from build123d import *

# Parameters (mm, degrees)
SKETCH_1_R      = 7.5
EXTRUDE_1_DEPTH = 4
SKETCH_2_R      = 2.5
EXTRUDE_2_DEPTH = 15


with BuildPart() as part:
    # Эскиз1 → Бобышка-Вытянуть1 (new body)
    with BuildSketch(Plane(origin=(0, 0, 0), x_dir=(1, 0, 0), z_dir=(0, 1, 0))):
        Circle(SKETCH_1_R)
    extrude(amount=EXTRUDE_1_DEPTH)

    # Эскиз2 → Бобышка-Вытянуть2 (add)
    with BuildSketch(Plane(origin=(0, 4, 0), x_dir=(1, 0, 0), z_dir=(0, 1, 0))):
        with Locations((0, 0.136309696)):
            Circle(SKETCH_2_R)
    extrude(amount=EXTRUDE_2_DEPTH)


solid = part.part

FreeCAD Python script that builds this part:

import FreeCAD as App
import Part
import Sketcher
from FreeCAD import Vector
Q = App.Units.Quantity

doc = App.newDocument("Part")
body = doc.addObject("PartDesign::Body", "Body")

# Sketch on XZ plane
sketch1 = doc.addObject("Sketcher::SketchObject", "Sketch")
body.addObject(sketch1)
sketch1.AttachmentSupport = (doc.XZ_Plane, [""])
sketch1.MapMode = "FlatFace"
sketch1.addGeometry(Part.Circle(Vector(0, 0, 0), Vector(0, 0, 1), 8), False)
sketch1.addConstraint(Sketcher.Constraint("Coincident", 0, 3, -1, 1))
sketch1.addConstraint(Sketcher.Constraint("Diameter", 0, Q("15 mm")))
pad1 = doc.addObject("PartDesign::Pad", "Pad")
body.addObject(pad1)
pad1.Profile = sketch1
pad1.Length = 4
pad1.Reversed = True

# Sketch on XZ plane
sketch2 = doc.addObject("Sketcher::SketchObject", "Sketch001")
body.addObject(sketch2)
sketch2.AttachmentSupport = (doc.XZ_Plane, [""])
sketch2.MapMode = "FlatFace"
sketch2.AttachmentOffset = App.Placement(Vector(0, 0, -4), App.Rotation())
sketch2.addGeometry(Part.Circle(Vector(0, -0.1, 0), Vector(0, 0, 1), 2.5), False)
sketch2.addConstraint(Sketcher.Constraint("PointOnObject", 0, 3, -2))
sketch2.addConstraint(Sketcher.Constraint("Diameter", 0, Q("5 mm")))
sketch2.addConstraint(Sketcher.Constraint("DistanceY", 0, 3, -1, 1, Q("0.13631 mm")))
pad2 = doc.addObject("PartDesign::Pad", "Pad001")
body.addObject(pad2)
pad2.Profile = sketch2
pad2.Length = 15
pad2.Reversed = True

doc.recompute()
